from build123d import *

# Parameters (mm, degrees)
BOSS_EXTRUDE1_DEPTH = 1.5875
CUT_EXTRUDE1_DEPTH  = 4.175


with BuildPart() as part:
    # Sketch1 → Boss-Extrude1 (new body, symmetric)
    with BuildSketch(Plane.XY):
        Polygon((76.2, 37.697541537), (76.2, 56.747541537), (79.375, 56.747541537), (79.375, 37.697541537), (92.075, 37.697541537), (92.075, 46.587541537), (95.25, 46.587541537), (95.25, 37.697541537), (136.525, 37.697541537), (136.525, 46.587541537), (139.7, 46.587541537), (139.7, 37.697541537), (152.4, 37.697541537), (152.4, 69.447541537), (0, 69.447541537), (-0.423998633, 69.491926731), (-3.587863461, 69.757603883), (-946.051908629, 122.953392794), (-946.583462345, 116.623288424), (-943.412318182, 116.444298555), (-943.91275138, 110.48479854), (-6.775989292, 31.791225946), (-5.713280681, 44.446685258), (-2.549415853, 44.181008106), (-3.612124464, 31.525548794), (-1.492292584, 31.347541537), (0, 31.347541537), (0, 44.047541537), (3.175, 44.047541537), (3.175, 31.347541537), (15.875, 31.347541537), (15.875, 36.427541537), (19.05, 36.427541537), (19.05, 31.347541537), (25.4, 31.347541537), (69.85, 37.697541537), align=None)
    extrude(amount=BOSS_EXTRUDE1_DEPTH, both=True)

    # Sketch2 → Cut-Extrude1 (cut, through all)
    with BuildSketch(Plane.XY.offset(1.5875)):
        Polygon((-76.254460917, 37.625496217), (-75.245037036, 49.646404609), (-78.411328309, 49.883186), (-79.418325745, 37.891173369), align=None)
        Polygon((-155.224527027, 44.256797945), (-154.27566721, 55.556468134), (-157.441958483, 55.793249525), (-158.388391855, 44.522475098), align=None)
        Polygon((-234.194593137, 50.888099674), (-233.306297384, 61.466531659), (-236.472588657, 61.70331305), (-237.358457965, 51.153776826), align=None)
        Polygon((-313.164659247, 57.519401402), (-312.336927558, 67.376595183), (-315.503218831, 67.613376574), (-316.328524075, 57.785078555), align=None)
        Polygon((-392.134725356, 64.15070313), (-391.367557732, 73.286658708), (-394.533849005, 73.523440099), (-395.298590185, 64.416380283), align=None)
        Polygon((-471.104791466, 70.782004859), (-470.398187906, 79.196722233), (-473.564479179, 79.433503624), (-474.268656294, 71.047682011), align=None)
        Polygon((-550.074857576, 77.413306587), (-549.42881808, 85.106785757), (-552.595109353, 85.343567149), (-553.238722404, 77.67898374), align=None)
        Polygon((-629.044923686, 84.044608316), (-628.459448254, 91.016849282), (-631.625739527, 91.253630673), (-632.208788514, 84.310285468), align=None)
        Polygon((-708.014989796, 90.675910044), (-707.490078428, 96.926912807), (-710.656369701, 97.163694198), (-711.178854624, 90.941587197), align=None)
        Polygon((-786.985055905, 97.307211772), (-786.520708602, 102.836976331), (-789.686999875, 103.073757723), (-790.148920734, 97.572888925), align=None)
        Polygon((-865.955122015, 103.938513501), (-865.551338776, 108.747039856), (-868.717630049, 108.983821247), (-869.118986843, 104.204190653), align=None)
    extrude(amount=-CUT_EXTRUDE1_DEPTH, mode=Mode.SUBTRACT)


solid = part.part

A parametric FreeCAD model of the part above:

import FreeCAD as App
import Part
import Sketcher

V = App.Vector
Q = App.Units.Quantity

doc = App.newDocument("Part")
params = doc.addObject("Spreadsheet::Sheet", "Params")
for row, (alias, value) in enumerate([
    ("sketch1_width", "6 in"),
    ("sketch1_width2", "0.5 in"),
    ("sketch1_height", "0.2 in"),
    ("sketch1_length", "0.5 in"),
    ("sketch1_width3", "0.25 in"),
    ("pad1_length", "0.125 in"),
    ("sketch2_length", "0.125 in"),
], start=1):
    params.set(f"A{row}", alias)
    params.set(f"B{row}", "=" + value)
    params.setAlias(f"B{row}", alias)

body = doc.addObject("PartDesign::Body", "Body")

# Sketch on XY plane
sketch1 = body.newObject("Sketcher::SketchObject", "Sketch")
sketch1.AttachmentSupport = (doc.getObject("XY_Plane"), [""])
sketch1.MapMode = "FlatFace"
sketch1.addGeometry(Part.LineSegment(V(76.2, 37.7, 0), V(76.2, 56.75, 0)), False)
sketch1.addGeometry(Part.LineSegment(V(76.2, 56.75, 0), V(79.38, 56.75, 0)), False)
sketch1.addGeometry(Part.LineSegment(V(79.38, 56.75, 0), V(79.38, 37.7, 0)), False)
sketch1.addGeometry(Part.LineSegment(V(79.38, 37.7, 0), V(92.08, 37.7, 0)), False)
sketch1.addGeometry(Part.LineSegment(V(92.08, 37.7, 0), V(92.08, 46.59, 0)), False)
sketch1.addGeometry(Part.LineSegment(V(92.08, 46.59, 0), V(95.25, 46.59, 0)), False)
sketch1.addGeometry(Part.LineSegment(V(95.25, 46.59, 0), V(95.25, 37.7, 0)), False)
sketch1.addGeometry(Part.LineSegment(V(95.25, 37.7, 0), V(136.53, 37.7, 0)), False)
sketch1.addGeometry(Part.LineSegment(V(136.53, 37.7, 0), V(136.53, 46.59, 0)), False)
sketch1.addGeometry(Part.LineSegment(V(136.53, 46.59, 0), V(139.7, 46.59, 0)), False)
sketch1.addGeometry(Part.LineSegment(V(139.7, 46.59, 0), V(139.7, 37.7, 0)), False)
sketch1.addGeometry(Part.LineSegment(V(139.7, 37.7, 0), V(152.4, 37.7, 0)), False)
sketch1.addGeometry(Part.LineSegment(V(152.4, 37.7, 0), V(152.4, 69.45, 0)), False)
sketch1.addGeometry(Part.LineSegment(V(152.4, 69.45, 0), V(0, 69.45, 0)), False)
sketch1.addGeometry(Part.LineSegment(V(0, 69.45, 0), V(-0.42, 69.49, 0)), False)
sketch1.addGeometry(Part.LineSegment(V(-0.42, 69.49, 0), V(-3.59, 69.76, 0)), False)
sketch1.addGeometry(Part.LineSegment(V(-3.59, 69.76, 0), V(-946.05, 122.95, 0)), False)
sketch1.addGeometry(Part.LineSegment(V(-946.05, 122.95, 0), V(-946.58, 116.62, 0)), False)
sketch1.addGeometry(Part.LineSegment(V(-946.58, 116.62, 0), V(-943.41, 116.44, 0)), False)
sketch1.addGeometry(Part.LineSegment(V(-943.41, 116.44, 0), V(-943.91, 110.48, 0)), False)
sketch1.addGeometry(Part.LineSegment(V(-943.91, 110.48, 0), V(-6.78, 31.79, 0)), False)
sketch1.addGeometry(Part.LineSegment(V(-6.78, 31.79, 0), V(-5.71, 44.45, 0)), False)
sketch1.addGeometry(Part.LineSegment(V(-5.71, 44.45, 0), V(-2.55, 44.18, 0)), False)
sketch1.addGeometry(Part.LineSegment(V(-2.55, 44.18, 0), V(-3.61, 31.53, 0)), False)
sketch1.addGeometry(Part.LineSegment(V(-3.61, 31.53, 0), V(-1.49, 31.35, 0)), False)
sketch1.addGeometry(Part.LineSegment(V(-1.49, 31.35, 0), V(0, 31.35, 0)), False)
sketch1.addGeometry(Part.LineSegment(V(0, 31.35, 0), V(0, 44.05, 0)), False)
sketch1.addGeometry(Part.LineSegment(V(0, 44.05, 0), V(3.17, 44.05, 0)), False)
sketch1.addGeometry(Part.LineSegment(V(3.17, 44.05, 0), V(3.17, 31.35, 0)), False)
sketch1.addGeometry(Part.LineSegment(V(3.17, 31.35, 0), V(15.88, 31.35, 0)), False)
sketch1.addGeometry(Part.LineSegment(V(15.88, 31.35, 0), V(15.88, 36.43, 0)), False)
sketch1.addGeometry(Part.LineSegment(V(15.88, 36.43, 0), V(19.05, 36.43, 0)), False)
sketch1.addGeometry(Part.LineSegment(V(19.05, 36.43, 0), V(19.05, 31.35, 0)), False)
sketch1.addGeometry(Part.LineSegment(V(19.05, 31.35, 0), V(25.4, 31.35, 0)), False)
sketch1.addGeometry(Part.LineSegment(V(25.4, 31.35, 0), V(69.85, 37.7, 0)), False)
sketch1.addGeometry(Part.LineSegment(V(69.85, 37.7, 0), V(76.2, 37.7, 0)), False)
sketch1.addConstraint(Sketcher.Constraint("Coincident", 0, 2, 1, 1))
sketch1.addConstraint(Sketcher.Constraint("Coincident", 1, 2, 2, 1))
sketch1.addConstraint(Sketcher.Constraint("Coincident", 2, 2, 3, 1))
sketch1.addConstraint(Sketcher.Constraint("Coincident", 3, 2, 4, 1))
sketch1.addConstraint(Sketcher.Constraint("Coincident", 4, 2, 5, 1))
sketch1.addConstraint(Sketcher.Constraint("Coincident", 5, 2, 6, 1))
sketch1.addConstraint(Sketcher.Constraint("Coincident", 6, 2, 7, 1))
sketch1.addConstraint(Sketcher.Constraint("Coincident", 7, 2, 8, 1))
sketch1.addConstraint(Sketcher.Constraint("Coincident", 8, 2, 9, 1))
sketch1.addConstraint(Sketcher.Constraint("Coincident", 9, 2, 10, 1))
sketch1.addConstraint(Sketcher.Constraint("Coincident", 10, 2, 11, 1))
sketch1.addConstraint(Sketcher.Constraint("Coincident", 11, 2, 12, 1))
sketch1.addConstraint(Sketcher.Constraint("Coincident", 12, 2, 13, 1))
sketch1.addConstraint(Sketcher.Constraint("Coincident", 13, 2, 14, 1))
sketch1.addConstraint(Sketcher.Constraint("Coincident", 14, 2, 15, 1))
sketch1.addConstraint(Sketcher.Constraint("Coincident", 15, 2, 16, 1))
sketch1.addConstraint(Sketcher.Constraint("Coincident", 16, 2, 17, 1))
sketch1.addConstraint(Sketcher.Constraint("Coincident", 17, 2, 18, 1))
sketch1.addConstraint(Sketcher.Constraint("Coincident", 18, 2, 19, 1))
sketch1.addConstraint(Sketcher.Constraint("Coincident", 19, 2, 20, 1))
sketch1.addConstraint(Sketcher.Constraint("Coincident", 20, 2, 21, 1))
sketch1.addConstraint(Sketcher.Constraint("Coincident", 21, 2, 22, 1))
sketch1.addConstraint(Sketcher.Constraint("Coincident", 22, 2, 23, 1))
sketch1.addConstraint(Sketcher.Constraint("Coincident", 23, 2, 24, 1))
sketch1.addConstraint(Sketcher.Constraint("Coincident", 24, 2, 25, 1))
sketch1.addConstraint(Sketcher.Constraint("Coincident", 25, 2, 26, 1))
sketch1.addConstraint(Sketcher.Constraint("Coincident", 26, 2, 27, 1))
sketch1.addConstraint(Sketcher.Constraint("Coincident", 27, 2, 28, 1))
sketch1.addConstraint(Sketcher.Constraint("Coincident", 28, 2, 29, 1))
sketch1.addConstraint(Sketcher.Constraint("Coincident", 29, 2, 30, 1))
sketch1.addConstraint(Sketcher.Constraint("Coincident", 30, 2, 31, 1))
sketch1.addConstraint(Sketcher.Constraint("Coincident", 31, 2, 32, 1))
sketch1.addConstraint(Sketcher.Constraint("Coincident", 32, 2, 33, 1))
sketch1.addConstraint(Sketcher.Constraint("Coincident", 33, 2, 34, 1))
sketch1.addConstraint(Sketcher.Constraint("Coincident", 34, 2, 35, 1))
sketch1.addConstraint(Sketcher.Constraint("Coincident", 35, 2, 0, 1))
sketch1.addConstraint(Sketcher.Constraint("Vertical", 0))
sketch1.addConstraint(Sketcher.Constraint("Horizontal", 1))
sketch1.addConstraint(Sketcher.Constraint("Vertical", 2))
sketch1.addConstraint(Sketcher.Constraint("Horizontal", 3))
sketch1.addConstraint(Sketcher.Constraint("Vertical", 4))
sketch1.addConstraint(Sketcher.Constraint("Horizontal", 5))
sketch1.addConstraint(Sketcher.Constraint("Vertical", 6))
sketch1.addConstraint(Sketcher.Constraint("Horizontal", 7))
sketch1.addConstraint(Sketcher.Constraint("Vertical", 8))
sketch1.addConstraint(Sketcher.Constraint("Horizontal", 9))
sketch1.addConstraint(Sketcher.Constraint("Vertical", 10))
sketch1.addConstraint(Sketcher.Constraint("Horizontal", 11))
sketch1.addConstraint(Sketcher.Constraint("Vertical", 12))
sketch1.addConstraint(Sketcher.Constraint("Horizontal", 13))
sketch1.addConstraint(Sketcher.Constraint("Horizontal", 25))
sketch1.addConstraint(Sketcher.Constraint("Vertical", 26))
sketch1.addConstraint(Sketcher.Constraint("Horizontal", 27))
sketch1.addConstraint(Sketcher.Constraint("Vertical", 28))
sketch1.addConstraint(Sketcher.Constraint("Horizontal", 29))
sketch1.addConstraint(Sketcher.Constraint("Vertical", 30))
sketch1.addConstraint(Sketcher.Constraint("Horizontal", 31))
sketch1.addConstraint(Sketcher.Constraint("Vertical", 32))
sketch1.addConstraint(Sketcher.Constraint("Horizontal", 33))
sketch1.addConstraint(Sketcher.Constraint("Horizontal", 35))
sketch1.addConstraint(Sketcher.Constraint("PointOnObject", 13, 2, -2))
sketch1.addConstraint(Sketcher.Constraint("PointOnObject", 25, 2, -2))
sketch1.addConstraint(Sketcher.Constraint("Perpendicular", 15, 17))
sketch1.addConstraint(Sketcher.Constraint("Parallel", 16, 18))
sketch1.addConstraint(Sketcher.Constraint("Parallel", 17, 19))
sketch1.addConstraint(Sketcher.Constraint("Perpendicular", 19, 20))
sketch1.addConstraint(Sketcher.Constraint("Perpendicular", 20, 21))
sketch1.addConstraint(Sketcher.Constraint("Perpendicular", 21, 22))
sketch1.addConstraint(Sketcher.Constraint("Perpendicular", 22, 23))
sketch1.addConstraint(Sketcher.Constraint("Perpendicular", 23, 24))
sketch1.addConstraint(Sketcher.Constraint("Horizontal", 3, 2, 6, 2))
sketch1.addConstraint(Sketcher.Constraint("Horizontal", 5, 2, 8, 2))
sketch1.addConstraint(Sketcher.Constraint("Horizontal", 7, 2, 10, 2))
sketch1.addConstraint(Sketcher.Constraint("Horizontal", 25, 2, 28, 2))
sketch1.addConstraint(Sketcher.Constraint("Horizontal", 29, 2, 32, 2))
sketch1.addConstraint(Sketcher.Constraint("Horizontal", 11, 2, 34, 2))
sketch1.addConstraint(Sketcher.Constraint("Equal", 1, 5))
sketch1.addConstraint(Sketcher.Constraint("Equal", 5, 9))
sketch1.addConstraint(Sketcher.Constraint("Equal", 3, 11))
sketch1.addConstraint(Sketcher.Constraint("Equal", 9, 27))
sketch1.addConstraint(Sketcher.Constraint("Equal", 11, 29))
sketch1.addConstraint(Sketcher.Constraint("Equal", 27, 31))
sketch1.addConstraint(Sketcher.Constraint("Equal", 33, 35))
sketch1.addConstraint(Sketcher.Constraint("Equal", 29, 26))
sketch1.addConstraint(Sketcher.Constraint("Equal", 15, 22))
sketch1.addConstraint(Sketcher.Constraint("Equal", 21, 23))
sketch1.addConstraint(Sketcher.Constraint("DistanceX", 13, 2, 13, 1, Q("6 in")))
sketch1.addConstraint(Sketcher.Constraint("DistanceX", 3, 1, 3, 2, Q("0.5 in")))
sketch1.addConstraint(Sketcher.Constraint("DistanceY", 30, 1, 30, 2, Q("0.2 in")))
sketch1.addConstraint(Sketcher.Constraint("DistanceX", -1, 1, 0, 2, Q("3 in")))
sketch1.addConstraint(Sketcher.Constraint("DistanceX", -1, 1, 33, 2, Q("1 in")))
sketch1.addConstraint(Sketcher.Constraint("Distance", 21, Q("0.5 in")))
sketch1.addConstraint(Sketcher.Constraint("DistanceX", 33, 1, 33, 2, Q("0.25 in")))
sketch1.addConstraint(Sketcher.Constraint("DistanceY", 0, 1, 0, 2, Q("0.75 in")))
sketch1.addConstraint(Sketcher.Constraint("DistanceY", 4, 1, 4, 2, Q("0.35 in")))
sketch1.addConstraint(Sketcher.Constraint("DistanceY", 12, 1, 12, 2, Q("1.25 in")))
sketch1.addConstraint(Sketcher.Constraint("Angle", 17, Q("-94.8 deg")))
sketch1.addConstraint(Sketcher.Constraint("DistanceY", 24, 2, 13, 2, Q("1.5 in")))
sketch1.addConstraint(Sketcher.Constraint("Distance", 15, Q("0.125 in")))
sketch1.addConstraint(Sketcher.Constraint("Distance", 20, Q("37.025 in")))
sketch1.addConstraint(Sketcher.Constraint("DistanceX", 14, 2, -1, 1, 0.423999))
sketch1.addConstraint(Sketcher.Constraint("DistanceY", -1, 1, 18, 2, 116.444299))
sketch1.addConstraint(Sketcher.Constraint("DistanceY", -1, 1, 19, 2, 110.484799))
sketch1.addConstraint(Sketcher.Constraint("DistanceX", 17, 2, 15, 2, 942.995599))
sketch1.addConstraint(Sketcher.Constraint("DistanceY", 20, 2, 14, 2, 37.700701))
sketch1.addConstraint(Sketcher.Constraint("Distance", 18, 3.176192))
sketch1.addConstraint(Sketcher.Constraint("DistanceX", 25, 1, 25, 2, 1.492293))
sketch1.addConstraint(Sketcher.Constraint("DistanceX", 16, 2, -1, 1, 946.051909))
sketch1.setExpression("Constraints[86]", "Params.sketch1_width")
sketch1.setExpression("Constraints[87]", "Params.sketch1_width2")
sketch1.setExpression("Constraints[88]", "Params.sketch1_height")
sketch1.setExpression("Constraints[91]", "Params.sketch1_length")
sketch1.setExpression("Constraints[92]", "Params.sketch1_width3")
pad1 = body.newObject("PartDesign::Pad", "Pad")
pad1.Profile = sketch1
pad1.setExpression("Length", "Params.pad1_length")
pad1.Midplane = True

# Sketch on XY plane
sketch2 = body.newObject("Sketcher::SketchObject", "Sketch001")
sketch2.AttachmentSupport = (doc.getObject("XY_Plane"), [""])
sketch2.MapMode = "FlatFace"
sketch2.AttachmentOffset = App.Placement(V(0, 0, 0.0625 * 25.4), App.Rotation())
sketch2.addGeometry(Part.LineSegment(V(-76.3, 37.6, 0), V(-75.2, 49.6, 0)), False)
sketch2.addGeometry(Part.LineSegment(V(-75.2, 49.6, 0), V(-78.4, 49.9, 0)), False)
sketch2.addGeometry(Part.LineSegment(V(-78.4, 49.9, 0), V(-79.4, 37.9, 0)), False)
sketch2.addGeometry(Part.LineSegment(V(-79.4, 37.9, 0), V(-76.3, 37.6, 0)), False)
sketch2.addGeometry(Part.LineSegment(V(-155.2, 44.3, 0), V(-154.3, 55.6, 0)), False)
sketch2.addGeometry(Part.LineSegment(V(-154.3, 55.6, 0), V(-157.4, 55.8, 0)), False)
sketch2.addGeometry(Part.LineSegment(V(-157.4, 55.8, 0), V(-158.4, 44.5, 0)), False)
sketch2.addGeometry(Part.LineSegment(V(-158.4, 44.5, 0), V(-155.2, 44.3, 0)), False)
sketch2.addGeometry(Part.LineSegment(V(-234.2, 50.9, 0), V(-233.3, 61.5, 0)), False)
sketch2.addGeometry(Part.LineSegment(V(-233.3, 61.5, 0), V(-236.5, 61.7, 0)), False)
sketch2.addGeometry(Part.LineSegment(V(-236.5, 61.7, 0), V(-237.4, 51.2, 0)), False)
sketch2.addGeometry(Part.LineSegment(V(-237.4, 51.2, 0), V(-234.2, 50.9, 0)), False)
sketch2.addGeometry(Part.LineSegment(V(-313.2, 57.5, 0), V(-312.3, 67.4, 0)), False)
sketch2.addGeometry(Part.LineSegment(V(-312.3, 67.4, 0), V(-315.5, 67.6, 0)), False)
sketch2.addGeometry(Part.LineSegment(V(-315.5, 67.6, 0), V(-316.3, 57.8, 0)), False)
sketch2.addGeometry(Part.LineSegment(V(-316.3, 57.8, 0), V(-313.2, 57.5, 0)), False)
sketch2.addGeometry(Part.LineSegment(V(-392.1, 64.2, 0), V(-391.4, 73.3, 0)), False)
sketch2.addGeometry(Part.LineSegment(V(-391.4, 73.3, 0), V(-394.5, 73.5, 0)), False)
sketch2.addGeometry(Part.LineSegment(V(-394.5, 73.5, 0), V(-395.3, 64.4, 0)), False)
sketch2.addGeometry(Part.LineSegment(V(-395.3, 64.4, 0), V(-392.1, 64.2, 0)), False)
sketch2.addGeometry(Part.LineSegment(V(-471.1, 70.8, 0), V(-470.4, 79.2, 0)), False)
sketch2.addGeometry(Part.LineSegment(V(-470.4, 79.2, 0), V(-473.6, 79.4, 0)), False)
sketch2.addGeometry(Part.LineSegment(V(-473.6, 79.4, 0), V(-474.3, 71, 0)), False)
sketch2.addGeometry(Part.LineSegment(V(-474.3, 71, 0), V(-471.1, 70.8, 0)), False)
sketch2.addGeometry(Part.LineSegment(V(-550.1, 77.4, 0), V(-549.4, 85.1, 0)), False)
sketch2.addGeometry(Part.LineSegment(V(-549.4, 85.1, 0), V(-552.6, 85.3, 0)), False)
sketch2.addGeometry(Part.LineSegment(V(-552.6, 85.3, 0), V(-553.2, 77.7, 0)), False)
sketch2.addGeometry(Part.LineSegment(V(-553.2, 77.7, 0), V(-550.1, 77.4, 0)), False)
sketch2.addGeometry(Part.LineSegment(V(-629, 84, 0), V(-628.5, 91, 0)), False)
sketch2.addGeometry(Part.LineSegment(V(-628.5, 91, 0), V(-631.6, 91.3, 0)), False)
sketch2.addGeometry(Part.LineSegment(V(-631.6, 91.3, 0), V(-632.2, 84.3, 0)), False)
sketch2.addGeometry(Part.LineSegment(V(-632.2, 84.3, 0), V(-629, 84, 0)), False)
sketch2.addGeometry(Part.LineSegment(V(-708, 90.7, 0), V(-707.5, 96.9, 0)), False)
sketch2.addGeometry(Part.LineSegment(V(-707.5, 96.9, 0), V(-710.7, 97.2, 0)), False)
sketch2.addGeometry(Part.LineSegment(V(-710.7, 97.2, 0), V(-711.2, 90.9, 0)), False)
sketch2.addGeometry(Part.LineSegment(V(-711.2, 90.9, 0), V(-708, 90.7, 0)), False)
sketch2.addGeometry(Part.LineSegment(V(-787, 97.3, 0), V(-786.5, 102.8, 0)), False)
sketch2.addGeometry(Part.LineSegment(V(-786.5, 102.8, 0), V(-789.7, 103.1, 0)), False)
sketch2.addGeometry(Part.LineSegment(V(-789.7, 103.1, 0), V(-790.1, 97.6, 0)), False)
sketch2.addGeometry(Part.LineSegment(V(-790.1, 97.6, 0), V(-787, 97.3, 0)), False)
sketch2.addGeometry(Part.LineSegment(V(-866, 103.9, 0), V(-865.6, 108.7, 0)), False)
sketch2.addGeometry(Part.LineSegment(V(-865.6, 108.7, 0), V(-868.7, 109, 0)), False)
sketch2.addGeometry(Part.LineSegment(V(-868.7, 109, 0), V(-869.1, 104.2, 0)), False)
sketch2.addGeometry(Part.LineSegment(V(-869.1, 104.2, 0), V(-866, 103.9, 0)), False)
sketch2.addConstraint(Sketcher.Constraint("Coincident", 0, 2, 1, 1))
sketch2.addConstraint(Sketcher.Constraint("Coincident", 1, 2, 2, 1))
sketch2.addConstraint(Sketcher.Constraint("Coincident", 2, 2, 3, 1))
sketch2.addConstraint(Sketcher.Constraint("Coincident", 3, 2, 0, 1))
sketch2.addConstraint(Sketcher.Constraint("Coincident", 4, 2, 5, 1))
sketch2.addConstraint(Sketcher.Constraint("Coincident", 5, 2, 6, 1))
sketch2.addConstraint(Sketcher.Constraint("Coincident", 6, 2, 7, 1))
sketch2.addConstraint(Sketcher.Constraint("Coincident", 7, 2, 4, 1))
sketch2.addConstraint(Sketcher.Constraint("Coincident", 8, 2, 9, 1))
sketch2.addConstraint(Sketcher.Constraint("Coincident", 9, 2, 10, 1))
sketch2.addConstraint(Sketcher.Constraint("Coincident", 10, 2, 11, 1))
sketch2.addConstraint(Sketcher.Constraint("Coincident", 11, 2, 8, 1))
sketch2.addConstraint(Sketcher.Constraint("Coincident", 12, 2, 13, 1))
sketch2.addConstraint(Sketcher.Constraint("Coincident", 13, 2, 14, 1))
sketch2.addConstraint(Sketcher.Constraint("Coincident", 14, 2, 15, 1))
sketch2.addConstraint(Sketcher.Constraint("Coincident", 15, 2, 12, 1))
sketch2.addConstraint(Sketcher.Constraint("Coincident", 16, 2, 17, 1))
sketch2.addConstraint(Sketcher.Constraint("Coincident", 17, 2, 18, 1))
sketch2.addConstraint(Sketcher.Constraint("Coincident", 18, 2, 19, 1))
sketch2.addConstraint(Sketcher.Constraint("Coincident", 19, 2, 16, 1))
sketch2.addConstraint(Sketcher.Constraint("Coincident", 20, 2, 21, 1))
sketch2.addConstraint(Sketcher.Constraint("Coincident", 21, 2, 22, 1))
sketch2.addConstraint(Sketcher.Constraint("Coincident", 22, 2, 23, 1))
sketch2.addConstraint(Sketcher.Constraint("Coincident", 23, 2, 20, 1))
sketch2.addConstraint(Sketcher.Constraint("Coincident", 24, 2, 25, 1))
sketch2.addConstraint(Sketcher.Constraint("Coincident", 25, 2, 26, 1))
sketch2.addConstraint(Sketcher.Constraint("Coincident", 26, 2, 27, 1))
sketch2.addConstraint(Sketcher.Constraint("Coincident", 27, 2, 24, 1))
sketch2.addConstraint(Sketcher.Constraint("Coincident", 28, 2, 29, 1))
sketch2.addConstraint(Sketcher.Constraint("Coincident", 29, 2, 30, 1))
sketch2.addConstraint(Sketcher.Constraint("Coincident", 30, 2, 31, 1))
sketch2.addConstraint(Sketcher.Constraint("Coincident", 31, 2, 28, 1))
sketch2.addConstraint(Sketcher.Constraint("Coincident", 32, 2, 33, 1))
sketch2.addConstraint(Sketcher.Constraint("Coincident", 33, 2, 34, 1))
sketch2.addConstraint(Sketcher.Constraint("Coincident", 34, 2, 35, 1))
sketch2.addConstraint(Sketcher.Constraint("Coincident", 35, 2, 32, 1))
sketch2.addConstraint(Sketcher.Constraint("Coincident", 36, 2, 37, 1))
sketch2.addConstraint(Sketcher.Constraint("Coincident", 37, 2, 38, 1))
sketch2.addConstraint(Sketcher.Constraint("Coincident", 38, 2, 39, 1))
sketch2.addConstraint(Sketcher.Constraint("Coincident", 39, 2, 36, 1))
sketch2.addConstraint(Sketcher.Constraint("Coincident", 40, 2, 41, 1))
sketch2.addConstraint(Sketcher.Constraint("Coincident", 41, 2, 42, 1))
sketch2.addConstraint(Sketcher.Constraint("Coincident", 42, 2, 43, 1))
sketch2.addConstraint(Sketcher.Constraint("Coincident", 43, 2, 40, 1))
sketch2.addConstraint(Sketcher.Constraint("Parallel", 0, 2))
sketch2.addConstraint(Sketcher.Constraint("Perpendicular", 2, 3))
sketch2.addConstraint(Sketcher.Constraint("Perpendicular", 3, 4))
sketch2.addConstraint(Sketcher.Constraint("Parallel", 1, 5))
sketch2.addConstraint(Sketcher.Constraint("Parallel", 4, 6))
sketch2.addConstraint(Sketcher.Constraint("Perpendicular", 6, 7))
sketch2.addConstraint(Sketcher.Constraint("Perpendicular", 7, 8))
sketch2.addConstraint(Sketcher.Constraint("Parallel", 5, 9))
sketch2.addConstraint(Sketcher.Constraint("Parallel", 8, 10))
sketch2.addConstraint(Sketcher.Constraint("Perpendicular", 10, 11))
sketch2.addConstraint(Sketcher.Constraint("Perpendicular", 11, 12))
sketch2.addConstraint(Sketcher.Constraint("Parallel", 9, 13))
sketch2.addConstraint(Sketcher.Constraint("Parallel", 12, 14))
sketch2.addConstraint(Sketcher.Constraint("Perpendicular", 14, 15))
sketch2.addConstraint(Sketcher.Constraint("Perpendicular", 15, 16))
sketch2.addConstraint(Sketcher.Constraint("Parallel", 13, 17))
sketch2.addConstraint(Sketcher.Constraint("Parallel", 16, 18))
sketch2.addConstraint(Sketcher.Constraint("Perpendicular", 18, 19))
sketch2.addConstraint(Sketcher.Constraint("Perpendicular", 19, 20))
sketch2.addConstraint(Sketcher.Constraint("Parallel", 17, 21))
sketch2.addConstraint(Sketcher.Constraint("Parallel", 20, 22))
sketch2.addConstraint(Sketcher.Constraint("Perpendicular", 22, 23))
sketch2.addConstraint(Sketcher.Constraint("Perpendicular", 23, 24))
sketch2.addConstraint(Sketcher.Constraint("Parallel", 21, 25))
sketch2.addConstraint(Sketcher.Constraint("Parallel", 24, 26))
sketch2.addConstraint(Sketcher.Constraint("Perpendicular", 26, 27))
sketch2.addConstraint(Sketcher.Constraint("Perpendicular", 27, 28))
sketch2.addConstraint(Sketcher.Constraint("Parallel", 25, 29))
sketch2.addConstraint(Sketcher.Constraint("Parallel", 28, 30))
sketch2.addConstraint(Sketcher.Constraint("Perpendicular", 30, 31))
sketch2.addConstraint(Sketcher.Constraint("Perpendicular", 31, 32))
sketch2.addConstraint(Sketcher.Constraint("Parallel", 29, 33))
sketch2.addConstraint(Sketcher.Constraint("Parallel", 32, 34))
sketch2.addConstraint(Sketcher.Constraint("Perpendicular", 34, 35))
sketch2.addConstraint(Sketcher.Constraint("Perpendicular", 35, 36))
sketch2.addConstraint(Sketcher.Constraint("Parallel", 33, 37))
sketch2.addConstraint(Sketcher.Constraint("Parallel", 36, 38))
sketch2.addConstraint(Sketcher.Constraint("Perpendicular", 38, 39))
sketch2.addConstraint(Sketcher.Constraint("Perpendicular", 39, 40))
sketch2.addConstraint(Sketcher.Constraint("Parallel", 37, 41))
sketch2.addConstraint(Sketcher.Constraint("Parallel", 40, 42))
sketch2.addConstraint(Sketcher.Constraint("Perpendicular", 42, 43))
sketch2.addConstraint(Sketcher.Constraint("Equal", 1, 5))
sketch2.addConstraint(Sketcher.Constraint("Equal", 5, 9))
sketch2.addConstraint(Sketcher.Constraint("Equal", 9, 13))
sketch2.addConstraint(Sketcher.Constraint("Equal", 13, 17))
sketch2.addConstraint(Sketcher.Constraint("Equal", 17, 21))
sketch2.addConstraint(Sketcher.Constraint("Equal", 21, 25))
sketch2.addConstraint(Sketcher.Constraint("Equal", 25, 29))
sketch2.addConstraint(Sketcher.Constraint("Equal", 29, 33))
sketch2.addConstraint(Sketcher.Constraint("Equal", 33, 37))
sketch2.addConstraint(Sketcher.Constraint("Equal", 37, 41))
sketch2.addConstraint(Sketcher.Constraint("Angle", 0, Q("85.2 deg")))
sketch2.addConstraint(Sketcher.Constraint("Distance", 3, Q("0.125 in")))
sketch2.addConstraint(Sketcher.Constraint("DistanceY", -1, 1, 36, 2, Q("4.0486999 in")))
sketch2.addConstraint(Sketcher.Constraint("DistanceY", -1, 1, 11, 2, 50.8881))
sketch2.addConstraint(Sketcher.Constraint("DistanceY", -1, 1, 15, 2, 57.519401))
sketch2.addConstraint(Sketcher.Constraint("DistanceX", 37, 2, -1, 1, 789.687))
sketch2.addConstraint(Sketcher.Constraint("DistanceY", 2, 2, 6, 2, 6.631302))
sketch2.addConstraint(Sketcher.Constraint("DistanceX", 7, 2, 2, 2, 75.806201))
sketch2.addConstraint(Sketcher.Constraint("DistanceX", 7, 2, 1, 2, 76.813199))
sketch2.addConstraint(Sketcher.Constraint("DistanceY", 6, 2, 10, 2, 6.631302))
sketch2.addConstraint(Sketcher.Constraint("DistanceX", 10, 2, 5, 2, 79.916499))
sketch2.addConstraint(Sketcher.Constraint("DistanceX", 11, 2, 6, 2, 75.806201))
sketch2.addConstraint(Sketcher.Constraint("DistanceY", 10, 2, 13, 2, 16.4596))
sketch2.addConstraint(Sketcher.Constraint("DistanceX", 15, 2, 10, 2, 75.806201))
sketch2.addConstraint(Sketcher.Constraint("DistanceX", 16, 2, 15, 2, 78.202898))
sketch2.addConstraint(Sketcher.Constraint("DistanceY", 14, 2, 18, 2, 6.631302))
sketch2.addConstraint(Sketcher.Constraint("DistanceX", 19, 2, 14, 2, 75.806201))
sketch2.addConstraint(Sketcher.Constraint("DistanceY", 19, 2, 21, 2, 15.2828))
sketch2.addConstraint(Sketcher.Constraint("DistanceY", 18, 2, 22, 2, 6.631302))
sketch2.addConstraint(Sketcher.Constraint("DistanceX", 23, 2, 18, 2, 75.806201))
sketch2.addConstraint(Sketcher.Constraint("DistanceY", 22, 2, 26, 2, 6.631302))
sketch2.addConstraint(Sketcher.Constraint("DistanceX", 27, 2, 22, 2, 75.806201))
sketch2.addConstraint(Sketcher.Constraint("DistanceY", 26, 2, 30, 2, 6.631302))
sketch2.addConstraint(Sketcher.Constraint("DistanceX", 31, 2, 26, 2, 75.806201))
sketch2.addConstraint(Sketcher.Constraint("DistanceY", 30, 2, 34, 2, 6.631302))
sketch2.addConstraint(Sketcher.Constraint("DistanceX", 35, 2, 30, 2, 75.806201))
sketch2.addConstraint(Sketcher.Constraint("DistanceY", 34, 2, 38, 2, 6.631302))
sketch2.addConstraint(Sketcher.Constraint("DistanceX", 39, 2, 34, 2, 75.806201))
sketch2.addConstraint(Sketcher.Constraint("DistanceY", 38, 2, 42, 2, 6.631302))
sketch2.addConstraint(Sketcher.Constraint("DistanceX", 43, 2, 38, 2, 75.806201))
sketch2.addConstraint(Sketcher.Constraint("Distance", 4, 11.339439))
sketch2.addConstraint(Sketcher.Constraint("Distance", 26, 7.691559))
sketch2.addConstraint(Sketcher.Constraint("Distance", 28, 6.99678))
sketch2.addConstraint(Sketcher.Constraint("Distance", 40, 4.82545))
sketch2.addConstraint(Sketcher.Constraint("DistanceY", -1, 1, 8, 2, 61.466532))
sketch2.addConstraint(Sketcher.Constraint("DistanceX", 32, 2, -1, 1, 707.490078))
sketch2.setExpression("Constraints[97]", "Params.sketch2_length")
pocket1 = body.newObject("PartDesign::Pocket", "Pocket")
pocket1.Profile = sketch2
pocket1.Type = "ThroughAll"

doc.recompute()
